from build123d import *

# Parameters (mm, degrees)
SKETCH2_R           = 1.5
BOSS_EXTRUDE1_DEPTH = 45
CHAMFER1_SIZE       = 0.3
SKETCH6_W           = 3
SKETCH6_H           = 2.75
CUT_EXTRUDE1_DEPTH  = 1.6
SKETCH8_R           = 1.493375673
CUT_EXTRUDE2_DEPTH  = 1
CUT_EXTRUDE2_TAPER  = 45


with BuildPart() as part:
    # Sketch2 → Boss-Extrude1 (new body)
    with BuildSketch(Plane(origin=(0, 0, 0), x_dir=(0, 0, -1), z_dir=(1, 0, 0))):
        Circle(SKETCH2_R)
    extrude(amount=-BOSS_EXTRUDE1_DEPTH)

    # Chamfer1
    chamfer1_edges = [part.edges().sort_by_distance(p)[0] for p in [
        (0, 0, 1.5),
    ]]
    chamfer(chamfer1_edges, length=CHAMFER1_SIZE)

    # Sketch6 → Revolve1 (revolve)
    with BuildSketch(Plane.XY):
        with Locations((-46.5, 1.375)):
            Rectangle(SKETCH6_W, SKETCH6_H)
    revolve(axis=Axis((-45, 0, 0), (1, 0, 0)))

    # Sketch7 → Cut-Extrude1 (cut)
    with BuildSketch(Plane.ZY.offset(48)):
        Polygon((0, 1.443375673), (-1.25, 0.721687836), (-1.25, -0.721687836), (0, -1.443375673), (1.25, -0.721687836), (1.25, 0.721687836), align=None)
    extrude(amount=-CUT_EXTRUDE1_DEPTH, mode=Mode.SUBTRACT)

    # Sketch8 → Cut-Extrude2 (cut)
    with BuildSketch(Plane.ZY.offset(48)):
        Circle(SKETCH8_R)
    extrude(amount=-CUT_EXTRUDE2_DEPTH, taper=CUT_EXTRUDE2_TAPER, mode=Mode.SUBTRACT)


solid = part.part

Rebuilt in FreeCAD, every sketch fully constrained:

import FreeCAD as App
import Part
import Sketcher

V = App.Vector
Q = App.Units.Quantity


def edges_at(feature, points):
    """Names of the edges that pass closest to the given points."""
    edges = feature.Shape.Edges
    near = lambda p: min(range(len(edges)), key=lambda i: edges[i].distToShape(Part.Vertex(*p))[0])
    return sorted({f"Edge{near(p) + 1}" for p in points})

doc = App.newDocument("Part")
body = doc.addObject("PartDesign::Body", "Body")

# Sketch on YZ plane
sketch1 = body.newObject("Sketcher::SketchObject", "Sketch")
sketch1.AttachmentSupport = (doc.getObject("YZ_Plane"), [""])
sketch1.MapMode = "FlatFace"
sketch1.addGeometry(Part.Circle(V(0, 0, 0), V(0, 0, 1), 1.5), False)
sketch1.addConstraint([
    Sketcher.Constraint("Coincident", 0, 3, -1, 1),
    Sketcher.Constraint("Diameter", 0, 3.0),
])
pad1 = body.newObject("PartDesign::Pad", "Pad")
pad1.Profile = sketch1
pad1.Length = 45
pad1.Reversed = True
doc.recompute()

chamfer = body.newObject("PartDesign::Chamfer", "Chamfer")
chamfer.Base = (pad1, edges_at(pad1, [(0, 0, 1.5)]))
chamfer.Size = 0.3

# Sketch on XY plane
sketch2 = body.newObject("Sketcher::SketchObject", "Sketch001")
sketch2.AttachmentSupport = (doc.getObject("XY_Plane"), [""])
sketch2.MapMode = "FlatFace"
sketch2.addGeometry([
    Part.LineSegment(V(-48, 2.8, 0), V(-48, 0, 0)),
    Part.LineSegment(V(-48, 0, 0), V(-45, 0, 0)),
    Part.LineSegment(V(-45, 0, 0), V(-45, 2.8, 0)),
    Part.LineSegment(V(-45, 2.8, 0), V(-48, 2.8, 0)),
], False)
sketch2.addConstraint([
    Sketcher.Constraint("Coincident", 0, 2, 1, 1),
    Sketcher.Constraint("Coincident", 1, 2, 2, 1),
    Sketcher.Constraint("Coincident", 2, 2, 3, 1),
    Sketcher.Constraint("Coincident", 3, 2, 0, 1),
    Sketcher.Constraint("Vertical", 0),
    Sketcher.Constraint("Horizontal", 1),
    Sketcher.Constraint("Vertical", 2),
    Sketcher.Constraint("Horizontal", 3),
    Sketcher.Constraint("PointOnObject", 0, 2, -1),
    Sketcher.Constraint("DistanceX", 1, 1, 1, 2, 3.0),
    Sketcher.Constraint("DistanceX", 0, 2, -1, 1, 48.0),
    Sketcher.Constraint("DistanceY", 0, 2, 0, 1, 2.75),
])
revolution = body.newObject("PartDesign::Revolution", "Revolution")
revolution.Profile = sketch2
revolution.ReferenceAxis = (sketch2, ["H_Axis"])
revolution.Angle = 360

# Sketch on YZ plane
sketch3 = body.newObject("Sketcher::SketchObject", "Sketch002")
sketch3.AttachmentSupport = (doc.getObject("YZ_Plane"), [""])
sketch3.MapMode = "FlatFace"
sketch3.AttachmentOffset = App.Placement(V(0, 0, -48), App.Rotation())
sketch3.addGeometry([
    Part.LineSegment(V(1.4, 0, 0), V(0.7, -1.2, 0)),  # 0
    Part.LineSegment(V(0.7, -1.2, 0), V(-0.7, -1.2, 0)),  # 1
    Part.LineSegment(V(-0.7, -1.2, 0), V(-1.4, 0, 0)),  # 2
    Part.LineSegment(V(-1.4, 0, 0), V(-0.7, 1.2, 0)),  # 3
    Part.LineSegment(V(-0.7, 1.2, 0), V(0.7, 1.2, 0)),  # 4
    Part.LineSegment(V(0.7, 1.2, 0), V(1.4, 0, 0)),  # 5
], False)
sketch3.addConstraint([
    Sketcher.Constraint("Coincident", 0, 2, 1, 1),
    Sketcher.Constraint("Coincident", 1, 2, 2, 1),
    Sketcher.Constraint("Coincident", 2, 2, 3, 1),
    Sketcher.Constraint("Coincident", 3, 2, 4, 1),
    Sketcher.Constraint("Coincident", 4, 2, 5, 1),
    Sketcher.Constraint("Coincident", 5, 2, 0, 1),
    Sketcher.Constraint("Horizontal", 1),
    Sketcher.Constraint("Horizontal", 4),
    Sketcher.Constraint("Symmetric", 0, 2, 3, 2, -1, 1),
    Sketcher.Constraint("Symmetric", 2, 2, 5, 2, -1, 1),
    Sketcher.Constraint("PointOnObject", 2, 2, -1),
    Sketcher.Constraint("Parallel", 2, 5),
    Sketcher.Constraint("Vertical", 1, 2, 3, 2),
    Sketcher.Constraint("Angle", 0, Q("-120 deg")),
    Sketcher.Constraint("DistanceY", 1, 2, 3, 2, 2.5),
    Sketcher.Constraint("DistanceX", 1, 2, 1, 1, 1.443376),
])
pocket1 = body.newObject("PartDesign::Pocket", "Pocket")
pocket1.Profile = sketch3
pocket1.Length = 1.6
pocket1.Reversed = True

# Sketch on YZ plane
sketch4 = body.newObject("Sketcher::SketchObject", "Sketch003")
sketch4.AttachmentSupport = (doc.getObject("YZ_Plane"), [""])
sketch4.MapMode = "FlatFace"
sketch4.AttachmentOffset = App.Placement(V(0, 0, -48), App.Rotation())
sketch4.addGeometry(Part.Circle(V(0, 0, 0), V(0, 0, 1), 1.5), False)
sketch4.addConstraint([
    Sketcher.Constraint("Coincident", 0, 3, -1, 1),
    Sketcher.Constraint("Diameter", 0, 2.986751),
])
pocket2 = body.newObject("PartDesign::Pocket", "Pocket001")
pocket2.Profile = sketch4
pocket2.Length = 1
pocket2.Reversed = True
pocket2.TaperAngle = -45

doc.recompute()
